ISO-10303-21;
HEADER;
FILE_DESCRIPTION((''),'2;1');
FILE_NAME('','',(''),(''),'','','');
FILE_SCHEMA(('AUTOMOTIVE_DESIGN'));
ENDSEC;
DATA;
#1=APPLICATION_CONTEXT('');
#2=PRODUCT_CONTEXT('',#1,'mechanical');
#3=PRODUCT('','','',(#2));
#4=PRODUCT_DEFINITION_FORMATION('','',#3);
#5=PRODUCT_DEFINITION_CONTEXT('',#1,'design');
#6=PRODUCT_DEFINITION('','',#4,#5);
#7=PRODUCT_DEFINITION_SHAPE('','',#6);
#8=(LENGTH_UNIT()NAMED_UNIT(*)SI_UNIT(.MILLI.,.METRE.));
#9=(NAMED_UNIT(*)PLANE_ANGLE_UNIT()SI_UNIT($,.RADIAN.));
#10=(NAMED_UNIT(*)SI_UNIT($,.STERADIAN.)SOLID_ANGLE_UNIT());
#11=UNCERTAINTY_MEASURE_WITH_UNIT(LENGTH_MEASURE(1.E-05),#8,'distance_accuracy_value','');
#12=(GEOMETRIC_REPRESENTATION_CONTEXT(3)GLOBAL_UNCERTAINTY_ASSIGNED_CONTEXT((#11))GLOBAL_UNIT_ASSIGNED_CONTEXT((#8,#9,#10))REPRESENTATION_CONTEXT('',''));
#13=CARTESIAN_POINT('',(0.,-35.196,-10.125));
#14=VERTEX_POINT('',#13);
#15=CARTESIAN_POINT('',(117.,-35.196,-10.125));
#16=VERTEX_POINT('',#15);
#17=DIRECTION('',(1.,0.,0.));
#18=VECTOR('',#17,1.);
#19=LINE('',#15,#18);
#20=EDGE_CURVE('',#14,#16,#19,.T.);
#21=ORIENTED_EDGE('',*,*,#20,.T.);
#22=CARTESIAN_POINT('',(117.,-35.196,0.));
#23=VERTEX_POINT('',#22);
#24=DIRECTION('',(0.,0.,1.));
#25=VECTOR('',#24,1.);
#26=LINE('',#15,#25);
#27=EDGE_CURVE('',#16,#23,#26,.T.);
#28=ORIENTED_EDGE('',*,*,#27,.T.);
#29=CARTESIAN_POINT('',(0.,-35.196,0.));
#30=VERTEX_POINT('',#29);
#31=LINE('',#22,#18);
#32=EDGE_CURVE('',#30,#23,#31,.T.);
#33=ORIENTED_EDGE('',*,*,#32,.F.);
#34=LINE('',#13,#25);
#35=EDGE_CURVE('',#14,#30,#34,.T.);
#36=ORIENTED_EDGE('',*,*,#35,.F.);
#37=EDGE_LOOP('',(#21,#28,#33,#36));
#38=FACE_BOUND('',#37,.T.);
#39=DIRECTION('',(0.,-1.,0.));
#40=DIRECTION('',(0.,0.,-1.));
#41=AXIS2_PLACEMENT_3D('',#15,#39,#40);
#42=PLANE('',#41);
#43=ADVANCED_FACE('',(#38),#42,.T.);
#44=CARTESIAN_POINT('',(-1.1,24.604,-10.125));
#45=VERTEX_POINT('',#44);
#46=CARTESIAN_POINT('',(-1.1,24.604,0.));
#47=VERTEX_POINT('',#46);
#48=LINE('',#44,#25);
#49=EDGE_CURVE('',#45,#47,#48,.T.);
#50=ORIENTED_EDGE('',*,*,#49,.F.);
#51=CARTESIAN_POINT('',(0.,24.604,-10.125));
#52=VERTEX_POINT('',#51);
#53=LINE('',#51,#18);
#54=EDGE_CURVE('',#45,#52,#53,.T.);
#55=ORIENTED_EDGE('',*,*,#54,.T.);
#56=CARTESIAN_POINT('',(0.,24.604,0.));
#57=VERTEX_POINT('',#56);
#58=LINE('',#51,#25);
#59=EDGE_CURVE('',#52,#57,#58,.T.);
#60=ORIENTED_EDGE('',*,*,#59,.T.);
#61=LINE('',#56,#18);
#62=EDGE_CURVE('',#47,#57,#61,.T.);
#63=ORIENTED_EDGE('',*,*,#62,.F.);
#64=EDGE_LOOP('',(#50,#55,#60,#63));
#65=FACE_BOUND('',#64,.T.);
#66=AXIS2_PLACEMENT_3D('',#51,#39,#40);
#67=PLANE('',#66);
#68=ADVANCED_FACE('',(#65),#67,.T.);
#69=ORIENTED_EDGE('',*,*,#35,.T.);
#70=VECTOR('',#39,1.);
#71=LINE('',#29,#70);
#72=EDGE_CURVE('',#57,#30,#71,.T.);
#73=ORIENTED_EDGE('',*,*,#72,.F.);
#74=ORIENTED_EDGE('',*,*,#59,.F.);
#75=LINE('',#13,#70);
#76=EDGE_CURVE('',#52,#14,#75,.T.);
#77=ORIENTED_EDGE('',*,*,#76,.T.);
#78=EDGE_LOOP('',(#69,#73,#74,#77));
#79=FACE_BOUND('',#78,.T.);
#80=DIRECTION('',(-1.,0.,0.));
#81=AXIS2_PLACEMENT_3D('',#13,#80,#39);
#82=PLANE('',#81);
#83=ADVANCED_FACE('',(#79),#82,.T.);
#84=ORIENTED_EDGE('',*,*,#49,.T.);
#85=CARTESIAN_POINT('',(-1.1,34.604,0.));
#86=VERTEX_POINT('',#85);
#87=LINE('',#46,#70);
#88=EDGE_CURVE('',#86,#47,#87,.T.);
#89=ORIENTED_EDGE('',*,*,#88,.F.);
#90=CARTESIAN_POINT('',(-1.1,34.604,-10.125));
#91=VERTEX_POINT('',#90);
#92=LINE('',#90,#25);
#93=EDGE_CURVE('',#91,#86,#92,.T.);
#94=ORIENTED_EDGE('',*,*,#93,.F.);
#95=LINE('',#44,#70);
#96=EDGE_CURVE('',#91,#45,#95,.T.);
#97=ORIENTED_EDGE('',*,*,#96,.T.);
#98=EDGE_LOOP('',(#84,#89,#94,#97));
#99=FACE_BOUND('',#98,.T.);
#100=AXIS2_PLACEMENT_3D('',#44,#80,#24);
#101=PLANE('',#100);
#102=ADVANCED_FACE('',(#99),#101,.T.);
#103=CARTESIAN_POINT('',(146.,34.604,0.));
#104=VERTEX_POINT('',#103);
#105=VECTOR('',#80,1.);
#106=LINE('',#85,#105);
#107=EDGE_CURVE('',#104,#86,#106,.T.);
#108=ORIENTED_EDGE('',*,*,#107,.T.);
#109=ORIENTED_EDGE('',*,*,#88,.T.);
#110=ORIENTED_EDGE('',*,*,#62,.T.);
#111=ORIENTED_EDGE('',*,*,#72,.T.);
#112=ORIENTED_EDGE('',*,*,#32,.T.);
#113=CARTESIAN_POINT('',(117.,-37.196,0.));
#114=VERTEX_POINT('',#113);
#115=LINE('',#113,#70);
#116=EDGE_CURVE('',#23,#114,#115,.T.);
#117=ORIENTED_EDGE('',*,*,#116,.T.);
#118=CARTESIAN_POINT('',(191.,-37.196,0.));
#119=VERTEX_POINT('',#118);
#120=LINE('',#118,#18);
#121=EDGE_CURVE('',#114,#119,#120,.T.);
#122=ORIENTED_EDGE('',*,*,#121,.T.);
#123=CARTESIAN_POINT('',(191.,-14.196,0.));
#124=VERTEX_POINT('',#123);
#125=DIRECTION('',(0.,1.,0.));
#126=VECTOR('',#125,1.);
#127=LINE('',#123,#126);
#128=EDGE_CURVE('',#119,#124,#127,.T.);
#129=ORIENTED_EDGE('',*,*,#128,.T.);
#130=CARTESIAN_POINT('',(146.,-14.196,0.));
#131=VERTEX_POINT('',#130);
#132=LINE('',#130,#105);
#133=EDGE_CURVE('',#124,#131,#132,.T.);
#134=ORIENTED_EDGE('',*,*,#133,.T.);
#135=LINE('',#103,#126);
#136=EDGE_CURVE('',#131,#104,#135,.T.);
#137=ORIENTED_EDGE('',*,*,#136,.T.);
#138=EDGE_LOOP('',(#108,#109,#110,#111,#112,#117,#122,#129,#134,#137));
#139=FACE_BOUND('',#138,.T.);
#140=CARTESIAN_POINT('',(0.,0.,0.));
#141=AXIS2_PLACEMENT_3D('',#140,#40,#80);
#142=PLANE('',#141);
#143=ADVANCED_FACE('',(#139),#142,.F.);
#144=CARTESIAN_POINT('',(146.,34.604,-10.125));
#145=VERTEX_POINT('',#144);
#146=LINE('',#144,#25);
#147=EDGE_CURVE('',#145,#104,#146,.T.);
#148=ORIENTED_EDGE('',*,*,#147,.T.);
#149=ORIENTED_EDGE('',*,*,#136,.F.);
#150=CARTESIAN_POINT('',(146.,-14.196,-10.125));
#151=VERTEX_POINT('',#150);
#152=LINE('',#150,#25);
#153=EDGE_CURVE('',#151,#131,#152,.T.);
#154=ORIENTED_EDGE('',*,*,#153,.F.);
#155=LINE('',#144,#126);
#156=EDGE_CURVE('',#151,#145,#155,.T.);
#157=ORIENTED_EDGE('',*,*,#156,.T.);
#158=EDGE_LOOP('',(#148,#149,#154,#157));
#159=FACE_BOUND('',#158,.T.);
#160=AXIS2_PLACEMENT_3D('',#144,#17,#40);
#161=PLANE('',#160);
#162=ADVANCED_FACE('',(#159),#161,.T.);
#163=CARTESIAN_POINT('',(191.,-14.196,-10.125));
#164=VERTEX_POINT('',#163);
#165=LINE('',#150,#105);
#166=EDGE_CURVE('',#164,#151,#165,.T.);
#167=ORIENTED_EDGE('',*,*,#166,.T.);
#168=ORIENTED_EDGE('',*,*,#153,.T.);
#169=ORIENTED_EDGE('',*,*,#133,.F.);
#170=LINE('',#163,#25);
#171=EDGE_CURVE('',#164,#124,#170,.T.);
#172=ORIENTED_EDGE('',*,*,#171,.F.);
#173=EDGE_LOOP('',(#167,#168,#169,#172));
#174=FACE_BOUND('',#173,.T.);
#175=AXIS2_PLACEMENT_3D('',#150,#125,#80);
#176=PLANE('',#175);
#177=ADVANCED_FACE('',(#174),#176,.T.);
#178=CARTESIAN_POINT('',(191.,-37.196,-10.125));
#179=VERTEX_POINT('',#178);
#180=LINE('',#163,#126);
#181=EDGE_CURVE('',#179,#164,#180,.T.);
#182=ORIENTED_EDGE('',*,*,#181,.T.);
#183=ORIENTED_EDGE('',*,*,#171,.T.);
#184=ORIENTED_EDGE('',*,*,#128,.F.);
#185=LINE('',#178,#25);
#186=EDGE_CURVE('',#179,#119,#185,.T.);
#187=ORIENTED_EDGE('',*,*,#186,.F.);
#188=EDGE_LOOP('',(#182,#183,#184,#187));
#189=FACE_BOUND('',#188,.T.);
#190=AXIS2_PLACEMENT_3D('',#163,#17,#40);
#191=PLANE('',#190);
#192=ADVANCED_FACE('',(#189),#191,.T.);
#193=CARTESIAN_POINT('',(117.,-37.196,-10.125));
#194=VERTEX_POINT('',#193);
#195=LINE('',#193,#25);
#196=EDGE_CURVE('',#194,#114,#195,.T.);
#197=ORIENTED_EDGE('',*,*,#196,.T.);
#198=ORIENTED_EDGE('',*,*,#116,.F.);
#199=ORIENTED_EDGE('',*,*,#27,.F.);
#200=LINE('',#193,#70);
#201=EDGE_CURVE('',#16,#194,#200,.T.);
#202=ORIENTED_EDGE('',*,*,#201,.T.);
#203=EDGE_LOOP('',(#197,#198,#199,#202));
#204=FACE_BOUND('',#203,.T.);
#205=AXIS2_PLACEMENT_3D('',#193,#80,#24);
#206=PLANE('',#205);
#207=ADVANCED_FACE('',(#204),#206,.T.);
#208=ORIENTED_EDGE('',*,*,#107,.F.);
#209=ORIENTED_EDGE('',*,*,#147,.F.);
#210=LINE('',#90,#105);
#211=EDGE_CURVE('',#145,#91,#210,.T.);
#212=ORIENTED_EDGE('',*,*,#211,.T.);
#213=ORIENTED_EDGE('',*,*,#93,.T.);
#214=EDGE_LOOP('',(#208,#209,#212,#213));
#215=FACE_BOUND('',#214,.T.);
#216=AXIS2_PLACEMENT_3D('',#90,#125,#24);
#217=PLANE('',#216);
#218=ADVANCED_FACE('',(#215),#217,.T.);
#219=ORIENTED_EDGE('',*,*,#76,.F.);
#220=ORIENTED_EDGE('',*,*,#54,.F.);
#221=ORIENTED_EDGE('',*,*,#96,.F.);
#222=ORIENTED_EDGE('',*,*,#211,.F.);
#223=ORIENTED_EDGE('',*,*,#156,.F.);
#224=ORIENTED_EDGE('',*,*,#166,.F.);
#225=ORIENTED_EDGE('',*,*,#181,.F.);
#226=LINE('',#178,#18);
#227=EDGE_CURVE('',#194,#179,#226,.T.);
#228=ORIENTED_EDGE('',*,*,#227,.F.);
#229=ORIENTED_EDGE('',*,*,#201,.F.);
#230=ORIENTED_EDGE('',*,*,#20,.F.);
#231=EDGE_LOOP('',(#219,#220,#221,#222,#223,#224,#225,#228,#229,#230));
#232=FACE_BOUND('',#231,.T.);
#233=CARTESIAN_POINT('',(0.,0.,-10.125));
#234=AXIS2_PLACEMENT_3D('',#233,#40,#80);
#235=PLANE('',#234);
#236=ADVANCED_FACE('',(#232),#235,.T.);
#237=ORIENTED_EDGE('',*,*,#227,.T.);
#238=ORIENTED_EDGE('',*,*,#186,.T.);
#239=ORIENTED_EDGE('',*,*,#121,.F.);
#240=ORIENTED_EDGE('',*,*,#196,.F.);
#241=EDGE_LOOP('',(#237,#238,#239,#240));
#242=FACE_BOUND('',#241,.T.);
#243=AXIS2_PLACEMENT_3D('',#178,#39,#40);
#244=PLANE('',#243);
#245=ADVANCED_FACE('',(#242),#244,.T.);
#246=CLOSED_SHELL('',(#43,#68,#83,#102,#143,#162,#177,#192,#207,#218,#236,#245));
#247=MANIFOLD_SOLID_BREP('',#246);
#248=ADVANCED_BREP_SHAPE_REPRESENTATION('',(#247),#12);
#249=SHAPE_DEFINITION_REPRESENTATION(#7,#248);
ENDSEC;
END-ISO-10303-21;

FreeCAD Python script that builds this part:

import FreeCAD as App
import Part
import Sketcher

doc = App.newDocument("Part")
body = doc.addObject("PartDesign::Body", "Body")

# Sketch on XY plane
sketch1 = body.newObject("Sketcher::SketchObject", "Sketch")
sketch1.AttachmentSupport = (doc.getObject("XY_Plane"), [""])
sketch1.MapMode = "FlatFace"
sketch1.addGeometry(Part.LineSegment(App.Vector(191, -37.2, 0), App.Vector(191, -14.2, 0)), False)
sketch1.addGeometry(Part.LineSegment(App.Vector(191, -14.2, 0), App.Vector(146, -14.2, 0)), False)
sketch1.addGeometry(Part.LineSegment(App.Vector(146, -14.2, 0), App.Vector(146, 34.6, 0)), False)
sketch1.addGeometry(Part.LineSegment(App.Vector(146, 34.6, 0), App.Vector(-1.1, 34.6, 0)), False)
sketch1.addGeometry(Part.LineSegment(App.Vector(-1.1, 34.6, 0), App.Vector(-1.1, 24.6, 0)), False)
sketch1.addGeometry(Part.LineSegment(App.Vector(-1.1, 24.6, 0), App.Vector(0, 24.6, 0)), False)
sketch1.addGeometry(Part.LineSegment(App.Vector(0, 24.6, 0), App.Vector(0, -35.2, 0)), False)
sketch1.addGeometry(Part.LineSegment(App.Vector(0, -35.2, 0), App.Vector(117, -35.2, 0)), False)
sketch1.addGeometry(Part.LineSegment(App.Vector(117, -35.2, 0), App.Vector(117, -37.2, 0)), False)
sketch1.addGeometry(Part.LineSegment(App.Vector(117, -37.2, 0), App.Vector(191, -37.2, 0)), False)
sketch1.addConstraint(Sketcher.Constraint("Coincident", 0, 2, 1, 1))
sketch1.addConstraint(Sketcher.Constraint("Coincident", 1, 2, 2, 1))
sketch1.addConstraint(Sketcher.Constraint("Coincident", 2, 2, 3, 1))
sketch1.addConstraint(Sketcher.Constraint("Coincident", 3, 2, 4, 1))
sketch1.addConstraint(Sketcher.Constraint("Coincident", 4, 2, 5, 1))
sketch1.addConstraint(Sketcher.Constraint("Coincident", 5, 2, 6, 1))
sketch1.addConstraint(Sketcher.Constraint("Coincident", 6, 2, 7, 1))
sketch1.addConstraint(Sketcher.Constraint("Coincident", 7, 2, 8, 1))
sketch1.addConstraint(Sketcher.Constraint("Coincident", 8, 2, 9, 1))
sketch1.addConstraint(Sketcher.Constraint("Coincident", 9, 2, 0, 1))
sketch1.addConstraint(Sketcher.Constraint("Vertical", 0))
sketch1.addConstraint(Sketcher.Constraint("Horizontal", 1))
sketch1.addConstraint(Sketcher.Constraint("Vertical", 2))
sketch1.addConstraint(Sketcher.Constraint("Horizontal", 3))
sketch1.addConstraint(Sketcher.Constraint("Vertical", 4))
sketch1.addConstraint(Sketcher.Constraint("Horizontal", 5))
sketch1.addConstraint(Sketcher.Constraint("Vertical", 6))
sketch1.addConstraint(Sketcher.Constraint("Horizontal", 7))
sketch1.addConstraint(Sketcher.Constraint("Vertical", 8))
sketch1.addConstraint(Sketcher.Constraint("Horizontal", 9))
sketch1.addConstraint(Sketcher.Constraint("PointOnObject", 5, 2, -2))
sketch1.addConstraint(Sketcher.Constraint("DistanceX", 1, 2, 1, 1, 45.0))
sketch1.addConstraint(Sketcher.Constraint("DistanceX", 7, 1, 7, 2, 117.0))
sketch1.addConstraint(Sketcher.Constraint("DistanceX", 9, 1, 9, 2, 74.0))
sketch1.addConstraint(Sketcher.Constraint("DistanceY", 0, 1, 0, 2, 23.0))
sketch1.addConstraint(Sketcher.Constraint("DistanceY", 4, 2, 4, 1, 10.0))
sketch1.addConstraint(Sketcher.Constraint("DistanceY", 8, 2, 8, 1, 2.0))
sketch1.addConstraint(Sketcher.Constraint("DistanceX", 3, 2, 3, 1, 147.1))
sketch1.addConstraint(Sketcher.Constraint("DistanceY", 2, 1, 2, 2, 48.8))
sketch1.addConstraint(Sketcher.Constraint("DistanceY", 0, 2, -1, 1, 14.196))
pad1 = body.newObject("PartDesign::Pad", "Pad")
pad1.Profile = sketch1
pad1.Length = 10.125
pad1.Reversed = True

doc.recompute()
